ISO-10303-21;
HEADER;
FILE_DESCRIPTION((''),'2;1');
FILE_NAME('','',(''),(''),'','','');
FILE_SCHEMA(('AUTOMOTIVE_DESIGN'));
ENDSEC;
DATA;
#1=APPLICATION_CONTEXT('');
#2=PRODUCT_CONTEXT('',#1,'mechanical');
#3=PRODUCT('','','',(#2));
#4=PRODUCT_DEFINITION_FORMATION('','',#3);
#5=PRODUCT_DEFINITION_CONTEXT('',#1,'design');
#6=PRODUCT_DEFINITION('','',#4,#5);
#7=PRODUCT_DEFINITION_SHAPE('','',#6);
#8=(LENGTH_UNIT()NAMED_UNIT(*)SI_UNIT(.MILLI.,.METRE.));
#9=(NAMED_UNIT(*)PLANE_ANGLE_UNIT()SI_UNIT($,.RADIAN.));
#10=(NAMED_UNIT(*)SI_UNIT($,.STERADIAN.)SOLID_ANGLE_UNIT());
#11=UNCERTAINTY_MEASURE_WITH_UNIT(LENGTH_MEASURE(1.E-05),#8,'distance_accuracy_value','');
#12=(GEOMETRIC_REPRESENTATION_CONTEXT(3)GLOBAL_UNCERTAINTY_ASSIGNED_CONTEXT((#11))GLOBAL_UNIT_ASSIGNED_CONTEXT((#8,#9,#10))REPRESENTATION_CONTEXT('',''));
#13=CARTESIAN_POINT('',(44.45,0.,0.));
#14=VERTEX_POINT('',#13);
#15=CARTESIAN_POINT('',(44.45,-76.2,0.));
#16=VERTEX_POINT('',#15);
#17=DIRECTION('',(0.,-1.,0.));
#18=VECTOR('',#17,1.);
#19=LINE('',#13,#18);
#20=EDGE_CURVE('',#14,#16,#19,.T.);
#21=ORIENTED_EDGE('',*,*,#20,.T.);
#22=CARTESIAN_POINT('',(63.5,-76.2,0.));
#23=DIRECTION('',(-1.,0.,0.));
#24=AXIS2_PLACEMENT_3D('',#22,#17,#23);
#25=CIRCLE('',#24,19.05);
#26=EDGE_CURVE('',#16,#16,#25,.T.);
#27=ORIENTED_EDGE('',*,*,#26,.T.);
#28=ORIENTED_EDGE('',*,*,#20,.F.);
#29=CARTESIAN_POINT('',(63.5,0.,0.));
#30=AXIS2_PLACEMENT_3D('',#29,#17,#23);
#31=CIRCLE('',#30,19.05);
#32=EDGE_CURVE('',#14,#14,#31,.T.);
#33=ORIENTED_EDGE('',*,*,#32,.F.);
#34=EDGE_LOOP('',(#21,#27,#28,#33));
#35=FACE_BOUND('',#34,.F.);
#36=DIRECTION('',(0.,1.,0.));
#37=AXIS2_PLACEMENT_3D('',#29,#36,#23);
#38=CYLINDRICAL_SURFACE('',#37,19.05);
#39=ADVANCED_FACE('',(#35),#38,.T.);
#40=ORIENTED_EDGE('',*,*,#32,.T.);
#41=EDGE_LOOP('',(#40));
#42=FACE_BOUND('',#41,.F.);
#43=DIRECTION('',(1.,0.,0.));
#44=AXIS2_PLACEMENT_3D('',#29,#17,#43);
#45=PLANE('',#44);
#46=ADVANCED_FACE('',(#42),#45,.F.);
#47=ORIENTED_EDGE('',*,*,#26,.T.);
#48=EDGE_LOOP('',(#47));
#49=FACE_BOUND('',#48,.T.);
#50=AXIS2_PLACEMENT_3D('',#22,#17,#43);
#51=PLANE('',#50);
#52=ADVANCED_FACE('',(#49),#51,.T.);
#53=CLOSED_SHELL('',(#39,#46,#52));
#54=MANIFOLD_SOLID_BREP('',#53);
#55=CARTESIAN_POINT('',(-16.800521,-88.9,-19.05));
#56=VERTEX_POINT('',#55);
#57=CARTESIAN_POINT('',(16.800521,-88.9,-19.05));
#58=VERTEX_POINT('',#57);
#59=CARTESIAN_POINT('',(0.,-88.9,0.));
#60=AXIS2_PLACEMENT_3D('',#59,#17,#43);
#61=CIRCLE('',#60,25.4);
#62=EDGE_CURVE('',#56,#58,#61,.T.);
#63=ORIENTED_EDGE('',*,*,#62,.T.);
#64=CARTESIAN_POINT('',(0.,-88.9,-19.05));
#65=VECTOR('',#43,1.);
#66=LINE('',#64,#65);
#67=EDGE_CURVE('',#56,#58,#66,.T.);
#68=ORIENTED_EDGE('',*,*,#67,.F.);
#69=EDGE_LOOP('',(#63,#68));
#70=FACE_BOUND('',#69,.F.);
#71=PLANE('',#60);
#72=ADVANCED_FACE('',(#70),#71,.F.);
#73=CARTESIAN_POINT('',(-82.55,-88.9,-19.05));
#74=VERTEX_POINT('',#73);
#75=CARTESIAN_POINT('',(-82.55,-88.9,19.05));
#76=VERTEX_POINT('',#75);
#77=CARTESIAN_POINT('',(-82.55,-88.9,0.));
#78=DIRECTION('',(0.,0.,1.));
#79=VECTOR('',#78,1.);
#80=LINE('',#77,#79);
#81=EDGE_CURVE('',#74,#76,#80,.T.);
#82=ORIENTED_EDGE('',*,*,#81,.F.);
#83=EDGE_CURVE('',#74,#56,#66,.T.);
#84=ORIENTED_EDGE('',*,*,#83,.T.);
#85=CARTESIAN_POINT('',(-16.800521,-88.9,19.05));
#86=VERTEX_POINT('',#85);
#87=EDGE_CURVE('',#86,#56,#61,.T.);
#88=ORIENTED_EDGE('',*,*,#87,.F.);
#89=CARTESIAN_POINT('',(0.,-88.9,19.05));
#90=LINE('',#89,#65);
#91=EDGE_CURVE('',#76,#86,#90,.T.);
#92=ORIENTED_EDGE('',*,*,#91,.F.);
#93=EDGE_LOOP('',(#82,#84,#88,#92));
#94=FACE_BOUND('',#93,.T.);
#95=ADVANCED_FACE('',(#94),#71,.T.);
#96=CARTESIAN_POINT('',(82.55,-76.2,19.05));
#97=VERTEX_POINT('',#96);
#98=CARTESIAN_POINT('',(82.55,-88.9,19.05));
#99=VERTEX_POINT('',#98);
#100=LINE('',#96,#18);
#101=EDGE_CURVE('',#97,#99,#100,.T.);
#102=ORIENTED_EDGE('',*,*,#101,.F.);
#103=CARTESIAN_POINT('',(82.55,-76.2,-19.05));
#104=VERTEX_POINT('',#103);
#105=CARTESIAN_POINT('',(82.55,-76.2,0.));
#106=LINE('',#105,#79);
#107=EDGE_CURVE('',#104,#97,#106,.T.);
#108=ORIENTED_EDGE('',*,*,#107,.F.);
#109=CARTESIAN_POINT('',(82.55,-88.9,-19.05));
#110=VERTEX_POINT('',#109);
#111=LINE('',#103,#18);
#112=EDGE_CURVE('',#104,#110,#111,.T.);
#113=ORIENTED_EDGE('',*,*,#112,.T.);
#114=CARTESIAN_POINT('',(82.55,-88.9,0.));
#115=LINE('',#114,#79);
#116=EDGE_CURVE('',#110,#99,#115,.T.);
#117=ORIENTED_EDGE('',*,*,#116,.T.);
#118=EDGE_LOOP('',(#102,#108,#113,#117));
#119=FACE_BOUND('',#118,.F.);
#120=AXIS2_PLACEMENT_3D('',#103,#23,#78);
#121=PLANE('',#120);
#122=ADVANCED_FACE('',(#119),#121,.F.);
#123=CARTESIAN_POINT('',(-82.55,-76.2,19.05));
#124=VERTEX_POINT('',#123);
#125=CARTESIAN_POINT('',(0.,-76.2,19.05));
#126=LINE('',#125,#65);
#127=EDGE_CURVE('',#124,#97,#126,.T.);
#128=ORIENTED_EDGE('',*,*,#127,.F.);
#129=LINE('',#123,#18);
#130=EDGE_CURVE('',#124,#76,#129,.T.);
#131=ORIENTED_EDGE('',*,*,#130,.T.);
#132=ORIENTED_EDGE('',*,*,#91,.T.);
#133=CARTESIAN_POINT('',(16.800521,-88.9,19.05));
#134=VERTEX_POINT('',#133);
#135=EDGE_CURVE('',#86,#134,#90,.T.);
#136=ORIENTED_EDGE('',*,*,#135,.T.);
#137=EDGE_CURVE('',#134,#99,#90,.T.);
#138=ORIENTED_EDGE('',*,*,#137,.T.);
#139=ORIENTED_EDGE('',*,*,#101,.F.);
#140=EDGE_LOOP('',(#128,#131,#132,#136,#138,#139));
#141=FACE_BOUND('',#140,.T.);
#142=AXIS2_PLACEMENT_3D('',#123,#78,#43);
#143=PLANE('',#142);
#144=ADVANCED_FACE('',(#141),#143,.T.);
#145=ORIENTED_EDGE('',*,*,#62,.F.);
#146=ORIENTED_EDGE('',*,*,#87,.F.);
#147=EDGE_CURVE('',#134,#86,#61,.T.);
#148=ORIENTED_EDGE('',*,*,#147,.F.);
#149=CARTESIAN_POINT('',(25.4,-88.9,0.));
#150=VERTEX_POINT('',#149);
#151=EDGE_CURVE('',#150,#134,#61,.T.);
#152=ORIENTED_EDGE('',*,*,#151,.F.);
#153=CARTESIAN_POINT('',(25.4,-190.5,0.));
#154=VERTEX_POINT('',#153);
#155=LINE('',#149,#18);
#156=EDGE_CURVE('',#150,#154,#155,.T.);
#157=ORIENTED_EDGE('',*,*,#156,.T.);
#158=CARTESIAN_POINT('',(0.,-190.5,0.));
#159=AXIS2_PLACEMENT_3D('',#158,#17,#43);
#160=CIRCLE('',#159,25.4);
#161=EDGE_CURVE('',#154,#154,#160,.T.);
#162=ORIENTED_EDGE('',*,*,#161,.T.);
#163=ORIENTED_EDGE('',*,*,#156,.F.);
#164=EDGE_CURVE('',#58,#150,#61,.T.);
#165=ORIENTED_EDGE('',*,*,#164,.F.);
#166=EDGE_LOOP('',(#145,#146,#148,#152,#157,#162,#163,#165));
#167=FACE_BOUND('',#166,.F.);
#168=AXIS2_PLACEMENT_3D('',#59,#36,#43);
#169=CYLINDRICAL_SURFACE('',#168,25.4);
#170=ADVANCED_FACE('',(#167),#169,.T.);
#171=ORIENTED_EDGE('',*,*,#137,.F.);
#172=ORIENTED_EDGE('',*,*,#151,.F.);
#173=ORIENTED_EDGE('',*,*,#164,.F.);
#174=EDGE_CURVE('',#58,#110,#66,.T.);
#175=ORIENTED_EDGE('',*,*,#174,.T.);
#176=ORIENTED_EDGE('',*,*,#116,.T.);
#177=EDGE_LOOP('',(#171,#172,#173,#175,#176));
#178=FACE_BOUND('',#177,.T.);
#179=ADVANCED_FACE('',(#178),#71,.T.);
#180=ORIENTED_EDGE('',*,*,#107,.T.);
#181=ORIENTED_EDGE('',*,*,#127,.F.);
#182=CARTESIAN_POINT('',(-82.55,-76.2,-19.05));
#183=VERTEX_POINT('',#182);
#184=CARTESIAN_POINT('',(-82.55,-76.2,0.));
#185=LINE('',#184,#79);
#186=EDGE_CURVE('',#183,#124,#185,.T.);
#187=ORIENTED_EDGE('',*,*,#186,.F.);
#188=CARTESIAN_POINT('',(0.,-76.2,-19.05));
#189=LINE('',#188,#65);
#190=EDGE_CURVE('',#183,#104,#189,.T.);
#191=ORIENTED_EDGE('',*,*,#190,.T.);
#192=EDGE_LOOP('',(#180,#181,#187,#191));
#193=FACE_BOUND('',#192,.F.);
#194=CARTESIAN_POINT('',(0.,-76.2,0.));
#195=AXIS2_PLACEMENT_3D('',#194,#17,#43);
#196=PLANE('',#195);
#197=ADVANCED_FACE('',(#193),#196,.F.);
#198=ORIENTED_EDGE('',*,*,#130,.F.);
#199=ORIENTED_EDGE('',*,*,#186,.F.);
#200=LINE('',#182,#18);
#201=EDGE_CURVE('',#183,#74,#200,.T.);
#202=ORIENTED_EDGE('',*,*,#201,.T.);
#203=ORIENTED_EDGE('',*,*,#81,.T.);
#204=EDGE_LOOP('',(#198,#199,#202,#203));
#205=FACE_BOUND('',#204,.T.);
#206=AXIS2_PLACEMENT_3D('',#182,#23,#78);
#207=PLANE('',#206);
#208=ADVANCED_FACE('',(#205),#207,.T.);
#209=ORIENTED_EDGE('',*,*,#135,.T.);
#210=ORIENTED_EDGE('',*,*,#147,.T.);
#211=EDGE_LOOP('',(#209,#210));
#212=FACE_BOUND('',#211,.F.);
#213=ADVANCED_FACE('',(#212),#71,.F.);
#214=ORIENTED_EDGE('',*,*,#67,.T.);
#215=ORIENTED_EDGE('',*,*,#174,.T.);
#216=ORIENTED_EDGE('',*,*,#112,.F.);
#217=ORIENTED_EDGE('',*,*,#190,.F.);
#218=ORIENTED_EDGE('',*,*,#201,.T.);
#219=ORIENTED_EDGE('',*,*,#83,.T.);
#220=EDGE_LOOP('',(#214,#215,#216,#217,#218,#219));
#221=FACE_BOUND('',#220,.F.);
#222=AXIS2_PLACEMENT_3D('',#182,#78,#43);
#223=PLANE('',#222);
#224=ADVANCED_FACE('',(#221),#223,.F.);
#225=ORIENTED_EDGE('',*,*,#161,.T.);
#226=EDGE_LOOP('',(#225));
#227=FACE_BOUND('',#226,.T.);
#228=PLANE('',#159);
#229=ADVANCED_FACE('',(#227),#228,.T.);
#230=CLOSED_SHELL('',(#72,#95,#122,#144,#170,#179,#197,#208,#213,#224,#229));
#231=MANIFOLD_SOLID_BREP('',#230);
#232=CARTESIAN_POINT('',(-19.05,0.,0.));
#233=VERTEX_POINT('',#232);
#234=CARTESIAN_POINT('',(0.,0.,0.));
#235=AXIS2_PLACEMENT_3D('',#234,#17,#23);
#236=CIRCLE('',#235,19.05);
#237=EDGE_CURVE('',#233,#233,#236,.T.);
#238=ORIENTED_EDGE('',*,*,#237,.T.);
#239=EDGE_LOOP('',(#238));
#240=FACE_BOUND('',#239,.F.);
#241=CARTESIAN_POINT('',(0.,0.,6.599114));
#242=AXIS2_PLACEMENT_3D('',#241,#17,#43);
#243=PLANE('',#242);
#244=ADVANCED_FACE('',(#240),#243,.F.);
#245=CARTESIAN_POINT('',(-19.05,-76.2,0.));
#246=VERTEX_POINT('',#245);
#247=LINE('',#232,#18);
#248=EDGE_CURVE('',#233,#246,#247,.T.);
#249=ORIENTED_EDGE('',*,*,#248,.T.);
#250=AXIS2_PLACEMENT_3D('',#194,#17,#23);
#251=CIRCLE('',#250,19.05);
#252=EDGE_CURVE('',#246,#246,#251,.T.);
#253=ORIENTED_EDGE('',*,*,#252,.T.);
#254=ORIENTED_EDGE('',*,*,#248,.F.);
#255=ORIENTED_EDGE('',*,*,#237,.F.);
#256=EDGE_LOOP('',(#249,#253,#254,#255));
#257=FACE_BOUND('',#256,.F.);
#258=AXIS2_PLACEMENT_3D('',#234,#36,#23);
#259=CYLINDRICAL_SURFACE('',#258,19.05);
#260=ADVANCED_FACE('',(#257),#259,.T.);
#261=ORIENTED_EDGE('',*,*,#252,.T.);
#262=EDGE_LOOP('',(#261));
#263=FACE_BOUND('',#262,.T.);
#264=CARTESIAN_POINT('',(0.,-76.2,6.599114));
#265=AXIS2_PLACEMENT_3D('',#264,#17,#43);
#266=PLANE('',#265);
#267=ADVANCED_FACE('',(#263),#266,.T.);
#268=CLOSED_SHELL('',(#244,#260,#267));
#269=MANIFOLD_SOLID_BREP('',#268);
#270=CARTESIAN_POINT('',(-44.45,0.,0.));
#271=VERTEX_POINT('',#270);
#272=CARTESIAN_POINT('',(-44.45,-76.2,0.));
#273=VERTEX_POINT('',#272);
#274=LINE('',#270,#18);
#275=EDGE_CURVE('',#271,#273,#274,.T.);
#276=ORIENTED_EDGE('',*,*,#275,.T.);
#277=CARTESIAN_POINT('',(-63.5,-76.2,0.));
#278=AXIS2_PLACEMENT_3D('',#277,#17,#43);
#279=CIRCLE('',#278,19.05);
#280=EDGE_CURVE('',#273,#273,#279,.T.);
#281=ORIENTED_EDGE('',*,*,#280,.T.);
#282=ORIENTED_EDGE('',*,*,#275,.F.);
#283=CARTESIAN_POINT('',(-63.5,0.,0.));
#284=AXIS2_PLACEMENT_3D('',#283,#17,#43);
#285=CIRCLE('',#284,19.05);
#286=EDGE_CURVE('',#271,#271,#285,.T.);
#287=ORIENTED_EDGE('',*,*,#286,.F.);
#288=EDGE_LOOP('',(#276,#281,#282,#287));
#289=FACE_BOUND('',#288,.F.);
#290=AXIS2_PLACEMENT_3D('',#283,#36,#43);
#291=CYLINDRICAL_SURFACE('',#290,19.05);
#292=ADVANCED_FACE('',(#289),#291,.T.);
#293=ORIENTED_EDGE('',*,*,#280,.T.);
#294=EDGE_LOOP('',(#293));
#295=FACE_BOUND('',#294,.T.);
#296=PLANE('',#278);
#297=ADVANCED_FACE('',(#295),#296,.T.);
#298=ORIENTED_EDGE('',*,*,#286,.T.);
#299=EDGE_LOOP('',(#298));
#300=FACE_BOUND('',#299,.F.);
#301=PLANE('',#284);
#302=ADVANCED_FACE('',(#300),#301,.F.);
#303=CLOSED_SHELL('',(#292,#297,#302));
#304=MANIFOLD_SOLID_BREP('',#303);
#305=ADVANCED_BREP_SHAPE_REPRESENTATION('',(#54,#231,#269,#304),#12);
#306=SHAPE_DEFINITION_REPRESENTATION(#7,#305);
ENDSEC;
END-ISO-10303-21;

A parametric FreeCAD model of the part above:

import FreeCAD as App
import Part
import Sketcher

V = App.Vector
Q = App.Units.Quantity


def add_polygon(sketch, points):
    """Adds a closed chain of lines whose ends are joined by coincident constraints."""
    first, n = sketch.GeometryCount, len(points)
    for a, b in zip(points, points[1:] + points[:1]):
        sketch.addGeometry(Part.LineSegment(App.Vector(*a, 0), App.Vector(*b, 0)), False)
    for i in range(n):
        sketch.addConstraint(Sketcher.Constraint("Coincident", first + i, 2, first + (i + 1) % n, 1))

doc = App.newDocument("Part")
body = doc.addObject("PartDesign::Body", "Body")
body.AllowCompound = True

# Sketch on XZ plane
sketch1 = body.newObject("Sketcher::SketchObject", "Sketch")
sketch1.AttachmentSupport = (doc.getObject("XZ_Plane"), [""])
sketch1.MapMode = "FlatFace"
sketch1.addGeometry(Part.Circle(V(0, 0, 0), V(0, 0, 1), 19), False)
sketch1.addGeometry(Part.Circle(V(-64, 0, 0), V(0, 0, 1), 19), False)
sketch1.addGeometry(Part.Circle(V(64, 0, 0), V(0, 0, 1), 19), False)
sketch1.addConstraint(Sketcher.Constraint("Coincident", 0, 3, -1, 1))
sketch1.addConstraint(Sketcher.Constraint("Equal", 0, 1))
sketch1.addConstraint(Sketcher.Constraint("Equal", 1, 2))
sketch1.addConstraint(Sketcher.Constraint("Symmetric", 1, 3, 2, 3, -1, 1))
sketch1.addConstraint(Sketcher.Constraint("PointOnObject", 1, 3, -1))
sketch1.addConstraint(Sketcher.Constraint("Diameter", 0, Q("1.5 in")))
sketch1.addConstraint(Sketcher.Constraint("DistanceX", 1, 3, 2, 3, Q("5 in")))
pad1 = body.newObject("PartDesign::Pad", "Pad")
pad1.Profile = sketch1
pad1.Length = Q("3 in")
body2 = doc.addObject("PartDesign::Body", "Body001")

# Sketch on XZ plane
sketch2 = body2.newObject("Sketcher::SketchObject", "Sketch001")
sketch2.AttachmentSupport = (doc.getObject("XZ_Plane001"), [""])
sketch2.MapMode = "FlatFace"
sketch2.AttachmentOffset = App.Placement(V(0, 0, 3 * 25.4), App.Rotation())
add_polygon(sketch2, [(-83, 19), (-83, -19), (83, -19), (83, 19)])  # lines 0-3
sketch2.addConstraint(Sketcher.Constraint("Vertical", 0))
sketch2.addConstraint(Sketcher.Constraint("Horizontal", 1))
sketch2.addConstraint(Sketcher.Constraint("Vertical", 2))
sketch2.addConstraint(Sketcher.Constraint("Horizontal", 3))
sketch2.addConstraint(Sketcher.Constraint("Symmetric", 0, 2, 2, 2, -1, 1))
sketch2.addConstraint(Sketcher.Constraint("DistanceX", 1, 1, 1, 2, Q("6.5 in")))
sketch2.addConstraint(Sketcher.Constraint("DistanceY", 0, 2, 0, 1, Q("1.5 in")))
pad2 = body2.newObject("PartDesign::Pad", "Pad001")
pad2.Profile = sketch2
pad2.Length = Q("0.5 in")

# Sketch on XZ plane
sketch3 = body2.newObject("Sketcher::SketchObject", "Sketch002")
sketch3.AttachmentSupport = (doc.getObject("XZ_Plane001"), [""])
sketch3.MapMode = "FlatFace"
sketch3.AttachmentOffset = App.Placement(V(0, 0, 3.5 * 25.4), App.Rotation())
sketch3.addGeometry(Part.Circle(V(0, 0, 0), V(0, 0, 1), 25), False)
sketch3.addConstraint(Sketcher.Constraint("Coincident", 0, 3, -1, 1))
sketch3.addConstraint(Sketcher.Constraint("Diameter", 0, Q("2 in")))
pad3 = body2.newObject("PartDesign::Pad", "Pad002")
pad3.Profile = sketch3
pad3.Length = Q("4 in")

doc.recompute()
